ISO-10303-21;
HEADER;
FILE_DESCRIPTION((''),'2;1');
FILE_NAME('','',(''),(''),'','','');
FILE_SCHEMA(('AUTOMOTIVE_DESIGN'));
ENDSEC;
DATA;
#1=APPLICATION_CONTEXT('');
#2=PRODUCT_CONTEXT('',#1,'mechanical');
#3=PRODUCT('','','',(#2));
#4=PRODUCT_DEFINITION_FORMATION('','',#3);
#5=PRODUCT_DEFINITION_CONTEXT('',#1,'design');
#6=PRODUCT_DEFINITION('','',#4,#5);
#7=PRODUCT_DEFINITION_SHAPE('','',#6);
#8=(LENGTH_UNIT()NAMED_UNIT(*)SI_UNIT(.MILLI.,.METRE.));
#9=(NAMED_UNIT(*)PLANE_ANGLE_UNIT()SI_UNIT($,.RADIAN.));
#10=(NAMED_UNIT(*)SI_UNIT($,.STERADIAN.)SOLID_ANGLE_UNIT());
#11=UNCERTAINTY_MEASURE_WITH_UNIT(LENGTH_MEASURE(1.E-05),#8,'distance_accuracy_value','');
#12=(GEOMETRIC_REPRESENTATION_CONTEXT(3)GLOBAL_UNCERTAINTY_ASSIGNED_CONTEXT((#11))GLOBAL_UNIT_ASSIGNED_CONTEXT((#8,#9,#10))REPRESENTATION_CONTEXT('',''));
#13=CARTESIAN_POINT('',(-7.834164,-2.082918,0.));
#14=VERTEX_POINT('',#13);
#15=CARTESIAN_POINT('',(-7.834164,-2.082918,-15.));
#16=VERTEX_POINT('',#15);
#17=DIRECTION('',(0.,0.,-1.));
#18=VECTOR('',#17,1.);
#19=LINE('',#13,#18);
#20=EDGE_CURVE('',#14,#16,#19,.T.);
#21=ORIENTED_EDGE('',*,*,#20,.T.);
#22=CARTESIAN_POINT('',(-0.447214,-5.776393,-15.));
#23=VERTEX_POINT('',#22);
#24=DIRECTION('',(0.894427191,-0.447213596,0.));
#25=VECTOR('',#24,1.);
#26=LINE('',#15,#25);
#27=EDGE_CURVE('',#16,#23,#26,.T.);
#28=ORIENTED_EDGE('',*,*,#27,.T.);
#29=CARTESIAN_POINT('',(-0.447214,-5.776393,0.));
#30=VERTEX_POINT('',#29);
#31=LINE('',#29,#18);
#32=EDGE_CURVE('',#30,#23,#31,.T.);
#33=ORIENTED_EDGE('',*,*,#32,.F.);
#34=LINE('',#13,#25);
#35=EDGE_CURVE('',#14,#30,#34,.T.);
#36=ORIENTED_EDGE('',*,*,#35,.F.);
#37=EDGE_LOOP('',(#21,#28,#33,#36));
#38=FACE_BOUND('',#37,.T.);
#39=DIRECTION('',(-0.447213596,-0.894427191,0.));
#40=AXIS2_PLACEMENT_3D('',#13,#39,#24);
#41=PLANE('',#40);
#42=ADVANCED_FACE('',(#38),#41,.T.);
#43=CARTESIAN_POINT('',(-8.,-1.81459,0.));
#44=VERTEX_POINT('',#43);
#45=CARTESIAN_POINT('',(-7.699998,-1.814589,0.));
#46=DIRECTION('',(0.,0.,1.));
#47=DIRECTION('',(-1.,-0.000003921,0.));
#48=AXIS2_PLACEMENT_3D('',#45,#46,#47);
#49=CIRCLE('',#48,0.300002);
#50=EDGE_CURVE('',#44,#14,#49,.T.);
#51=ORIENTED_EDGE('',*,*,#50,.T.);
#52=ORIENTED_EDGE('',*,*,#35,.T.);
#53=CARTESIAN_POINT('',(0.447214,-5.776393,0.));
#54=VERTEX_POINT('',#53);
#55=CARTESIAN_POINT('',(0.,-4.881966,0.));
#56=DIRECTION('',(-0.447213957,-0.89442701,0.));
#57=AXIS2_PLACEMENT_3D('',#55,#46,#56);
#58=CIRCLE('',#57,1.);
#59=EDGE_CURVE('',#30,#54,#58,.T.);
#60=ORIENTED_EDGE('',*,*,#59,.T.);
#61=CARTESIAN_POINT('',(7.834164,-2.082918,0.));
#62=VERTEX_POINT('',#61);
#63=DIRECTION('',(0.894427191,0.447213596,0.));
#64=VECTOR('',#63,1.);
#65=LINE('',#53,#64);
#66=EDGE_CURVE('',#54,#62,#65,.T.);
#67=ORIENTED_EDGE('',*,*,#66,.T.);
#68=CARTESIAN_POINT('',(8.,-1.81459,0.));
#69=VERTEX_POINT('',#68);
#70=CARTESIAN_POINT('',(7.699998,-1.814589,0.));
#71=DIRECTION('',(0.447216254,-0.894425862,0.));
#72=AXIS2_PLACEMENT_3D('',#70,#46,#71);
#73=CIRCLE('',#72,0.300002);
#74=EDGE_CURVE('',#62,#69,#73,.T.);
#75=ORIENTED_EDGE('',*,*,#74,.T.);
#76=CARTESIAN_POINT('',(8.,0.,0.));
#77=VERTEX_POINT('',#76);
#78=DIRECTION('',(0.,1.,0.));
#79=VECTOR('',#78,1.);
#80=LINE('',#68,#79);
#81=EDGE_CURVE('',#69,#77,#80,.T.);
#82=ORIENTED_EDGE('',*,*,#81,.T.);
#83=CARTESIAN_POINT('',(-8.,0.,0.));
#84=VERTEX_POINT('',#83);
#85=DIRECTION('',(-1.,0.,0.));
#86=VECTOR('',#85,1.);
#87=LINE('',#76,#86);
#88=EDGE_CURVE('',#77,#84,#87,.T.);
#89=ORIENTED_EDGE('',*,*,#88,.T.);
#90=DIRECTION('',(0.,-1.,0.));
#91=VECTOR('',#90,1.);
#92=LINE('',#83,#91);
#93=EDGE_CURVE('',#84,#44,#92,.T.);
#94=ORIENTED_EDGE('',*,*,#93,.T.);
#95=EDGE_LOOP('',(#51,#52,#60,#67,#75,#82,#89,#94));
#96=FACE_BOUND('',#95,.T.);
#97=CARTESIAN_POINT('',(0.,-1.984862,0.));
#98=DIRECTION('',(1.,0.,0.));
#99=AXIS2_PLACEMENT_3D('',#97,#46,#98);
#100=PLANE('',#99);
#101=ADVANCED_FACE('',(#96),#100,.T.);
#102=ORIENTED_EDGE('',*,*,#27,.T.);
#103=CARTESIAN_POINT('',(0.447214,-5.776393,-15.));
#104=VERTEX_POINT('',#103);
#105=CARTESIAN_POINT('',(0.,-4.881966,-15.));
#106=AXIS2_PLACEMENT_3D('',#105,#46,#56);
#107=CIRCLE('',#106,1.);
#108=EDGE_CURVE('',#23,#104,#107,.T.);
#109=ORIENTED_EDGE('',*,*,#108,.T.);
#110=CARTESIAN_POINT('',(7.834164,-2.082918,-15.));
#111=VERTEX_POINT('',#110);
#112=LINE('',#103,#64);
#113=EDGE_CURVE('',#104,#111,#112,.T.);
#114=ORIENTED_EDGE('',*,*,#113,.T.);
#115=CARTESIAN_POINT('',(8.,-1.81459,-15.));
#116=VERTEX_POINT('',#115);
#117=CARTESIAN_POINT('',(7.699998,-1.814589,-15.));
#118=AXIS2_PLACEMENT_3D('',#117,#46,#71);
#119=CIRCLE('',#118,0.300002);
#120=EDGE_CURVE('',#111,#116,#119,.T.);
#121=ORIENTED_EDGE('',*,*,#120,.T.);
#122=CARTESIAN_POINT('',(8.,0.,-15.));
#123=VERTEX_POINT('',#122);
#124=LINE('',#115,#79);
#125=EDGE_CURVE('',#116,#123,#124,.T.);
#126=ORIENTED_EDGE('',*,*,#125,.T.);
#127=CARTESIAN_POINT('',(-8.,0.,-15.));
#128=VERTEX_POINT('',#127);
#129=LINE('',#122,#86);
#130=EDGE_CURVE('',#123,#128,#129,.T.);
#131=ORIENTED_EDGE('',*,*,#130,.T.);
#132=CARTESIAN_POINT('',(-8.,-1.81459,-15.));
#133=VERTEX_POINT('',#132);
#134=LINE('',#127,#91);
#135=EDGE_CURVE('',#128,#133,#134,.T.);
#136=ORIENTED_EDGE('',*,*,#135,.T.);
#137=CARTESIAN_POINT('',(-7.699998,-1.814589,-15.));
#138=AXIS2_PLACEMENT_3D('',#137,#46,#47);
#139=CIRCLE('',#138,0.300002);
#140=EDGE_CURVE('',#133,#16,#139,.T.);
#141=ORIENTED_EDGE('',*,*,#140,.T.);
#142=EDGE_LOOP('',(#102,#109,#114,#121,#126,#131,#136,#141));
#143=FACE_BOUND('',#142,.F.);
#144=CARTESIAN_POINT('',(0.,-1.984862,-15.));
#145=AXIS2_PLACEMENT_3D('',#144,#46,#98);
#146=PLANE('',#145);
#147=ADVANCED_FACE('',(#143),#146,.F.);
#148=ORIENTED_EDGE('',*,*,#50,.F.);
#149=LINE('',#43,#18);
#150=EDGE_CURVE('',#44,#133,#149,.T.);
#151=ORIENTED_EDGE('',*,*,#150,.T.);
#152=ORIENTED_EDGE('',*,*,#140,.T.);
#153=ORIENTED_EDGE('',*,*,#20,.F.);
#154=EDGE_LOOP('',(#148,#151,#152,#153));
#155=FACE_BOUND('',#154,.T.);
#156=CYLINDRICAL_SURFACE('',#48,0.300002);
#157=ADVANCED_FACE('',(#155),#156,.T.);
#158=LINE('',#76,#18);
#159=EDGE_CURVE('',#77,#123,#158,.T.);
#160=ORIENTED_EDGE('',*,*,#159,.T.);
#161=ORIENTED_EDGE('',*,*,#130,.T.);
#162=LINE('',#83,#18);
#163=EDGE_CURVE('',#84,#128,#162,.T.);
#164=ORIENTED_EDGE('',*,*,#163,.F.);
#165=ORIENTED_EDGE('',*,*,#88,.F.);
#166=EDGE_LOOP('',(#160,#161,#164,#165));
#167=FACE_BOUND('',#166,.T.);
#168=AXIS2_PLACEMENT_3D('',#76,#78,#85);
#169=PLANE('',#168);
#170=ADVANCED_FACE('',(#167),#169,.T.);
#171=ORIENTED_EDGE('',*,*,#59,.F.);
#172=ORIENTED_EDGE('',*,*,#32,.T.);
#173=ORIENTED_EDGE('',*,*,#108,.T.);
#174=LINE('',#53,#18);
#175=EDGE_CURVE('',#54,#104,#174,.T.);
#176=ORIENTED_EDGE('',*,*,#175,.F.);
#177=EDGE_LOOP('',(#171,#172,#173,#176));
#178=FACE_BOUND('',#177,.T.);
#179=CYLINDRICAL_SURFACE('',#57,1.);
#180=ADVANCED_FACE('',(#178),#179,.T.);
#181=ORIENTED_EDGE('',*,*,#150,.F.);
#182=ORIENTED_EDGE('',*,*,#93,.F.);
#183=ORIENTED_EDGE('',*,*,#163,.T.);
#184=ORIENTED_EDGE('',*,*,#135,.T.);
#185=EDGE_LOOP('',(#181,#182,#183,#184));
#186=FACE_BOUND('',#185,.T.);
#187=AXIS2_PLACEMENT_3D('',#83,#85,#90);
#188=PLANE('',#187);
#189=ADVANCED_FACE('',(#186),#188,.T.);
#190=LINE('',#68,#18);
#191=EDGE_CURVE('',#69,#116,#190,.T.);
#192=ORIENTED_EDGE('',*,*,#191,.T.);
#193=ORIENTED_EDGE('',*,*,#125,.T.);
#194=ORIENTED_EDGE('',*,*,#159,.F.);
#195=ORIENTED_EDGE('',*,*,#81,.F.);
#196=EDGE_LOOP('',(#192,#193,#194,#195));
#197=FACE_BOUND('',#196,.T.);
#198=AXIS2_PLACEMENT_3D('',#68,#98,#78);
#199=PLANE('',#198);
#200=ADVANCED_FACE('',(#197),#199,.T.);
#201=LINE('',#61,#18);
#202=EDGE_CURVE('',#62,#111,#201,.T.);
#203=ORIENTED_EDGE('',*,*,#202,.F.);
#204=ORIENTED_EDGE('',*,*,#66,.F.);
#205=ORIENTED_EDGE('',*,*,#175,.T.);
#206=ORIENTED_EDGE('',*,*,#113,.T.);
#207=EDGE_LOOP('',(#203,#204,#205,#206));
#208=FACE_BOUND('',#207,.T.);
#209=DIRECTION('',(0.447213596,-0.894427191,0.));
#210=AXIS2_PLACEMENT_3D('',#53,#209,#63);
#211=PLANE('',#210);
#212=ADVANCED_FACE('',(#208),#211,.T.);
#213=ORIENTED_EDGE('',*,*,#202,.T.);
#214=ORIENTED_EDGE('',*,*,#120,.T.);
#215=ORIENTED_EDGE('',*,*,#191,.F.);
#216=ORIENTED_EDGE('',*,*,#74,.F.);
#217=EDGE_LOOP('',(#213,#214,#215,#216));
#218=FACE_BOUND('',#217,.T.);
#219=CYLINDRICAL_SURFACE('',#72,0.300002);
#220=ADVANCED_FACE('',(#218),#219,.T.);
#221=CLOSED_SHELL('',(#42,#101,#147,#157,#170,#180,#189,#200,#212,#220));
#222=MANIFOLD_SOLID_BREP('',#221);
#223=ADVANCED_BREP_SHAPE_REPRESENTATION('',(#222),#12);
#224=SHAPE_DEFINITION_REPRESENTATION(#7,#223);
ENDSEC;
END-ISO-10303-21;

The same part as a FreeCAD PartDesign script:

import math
import FreeCAD as App
import Part
import Sketcher
Q = App.Units.Quantity

doc = App.newDocument("Part")
body = doc.addObject("PartDesign::Body", "Body")

sketch1 = body.newObject("Sketcher::SketchObject", "Sketch")
sketch1.AttachmentSupport = (doc.getObject("XY_Plane"), [""])
sketch1.MapMode = "FlatFace"
sketch1.addGeometry([
    Part.LineSegment(App.Vector(8, 0, 0), App.Vector(-8, 0, 0)),
    Part.LineSegment(App.Vector(-8, 0, 0), App.Vector(-8, -1.81, 0)),
    Part.ArcOfCircle(Part.Circle(App.Vector(-7.7, -1.81, 0), App.Vector(0, 0, 1), 0.3), math.radians(-180), math.radians(-117)),
    Part.LineSegment(App.Vector(-7.83, -2.08, 0), App.Vector(-0.45, -5.78, 0)),
    Part.ArcOfCircle(Part.Circle(App.Vector(0, -4.88, 0), App.Vector(0, 0, 1), 1), math.radians(-117), math.radians(-63)),
    Part.LineSegment(App.Vector(0.45, -5.78, 0), App.Vector(7.83, -2.08, 0)),
    Part.ArcOfCircle(Part.Circle(App.Vector(7.7, -1.81, 0), App.Vector(0, 0, 1), 0.3), math.radians(-63), math.radians(0)),
    Part.LineSegment(App.Vector(8, -1.81, 0), App.Vector(8, 0, 0)),
], False)
sketch1.addConstraint([
    Sketcher.Constraint("Coincident", 0, 2, 1, 1),
    Sketcher.Constraint("Coincident", 1, 2, 2, 1),
    Sketcher.Constraint("Coincident", 2, 2, 3, 1),
    Sketcher.Constraint("Tangent", 3, 2, 4, 1),
    Sketcher.Constraint("Tangent", 4, 2, 5, 1),
    Sketcher.Constraint("Coincident", 5, 2, 6, 1),
    Sketcher.Constraint("Coincident", 6, 2, 7, 1),
    Sketcher.Constraint("Coincident", 7, 2, 0, 1),
    Sketcher.Constraint("Horizontal", 0),
    Sketcher.Constraint("Vertical", 1),
    Sketcher.Constraint("Vertical", 7),
    Sketcher.Constraint("Equal", 2, 6),
    Sketcher.Constraint("Symmetric", 0, 2, 7, 2, -1, 1),
    Sketcher.Constraint("Symmetric", 3, 2, 4, 2, -2),
    Sketcher.Constraint("Horizontal", 6, 3, 1, 2),
    Sketcher.Constraint("Horizontal", 2, 2, 5, 2),
    Sketcher.Constraint("Horizontal", 1, 2, 6, 2),
    Sketcher.Constraint("Radius", 4, Q("1 mm")),
    Sketcher.Constraint("Radius", 2, Q("0.300002 mm")),
    Sketcher.Constraint("DistanceX", 0, 2, 0, 1, Q("16 mm")),
    Sketcher.Constraint("DistanceY", 1, 2, 1, 1, Q("1.81459 mm")),
    Sketcher.Constraint("Distance", 3, Q("8.258861 mm")),
    Sketcher.Constraint("DistanceY", 2, 2, -1, 1, Q("2.082918 mm")),
])
pad1 = body.newObject("PartDesign::Pad", "Pad")
pad1.Profile = sketch1
pad1.Length = 15
pad1.Reversed = True

doc.recompute()
